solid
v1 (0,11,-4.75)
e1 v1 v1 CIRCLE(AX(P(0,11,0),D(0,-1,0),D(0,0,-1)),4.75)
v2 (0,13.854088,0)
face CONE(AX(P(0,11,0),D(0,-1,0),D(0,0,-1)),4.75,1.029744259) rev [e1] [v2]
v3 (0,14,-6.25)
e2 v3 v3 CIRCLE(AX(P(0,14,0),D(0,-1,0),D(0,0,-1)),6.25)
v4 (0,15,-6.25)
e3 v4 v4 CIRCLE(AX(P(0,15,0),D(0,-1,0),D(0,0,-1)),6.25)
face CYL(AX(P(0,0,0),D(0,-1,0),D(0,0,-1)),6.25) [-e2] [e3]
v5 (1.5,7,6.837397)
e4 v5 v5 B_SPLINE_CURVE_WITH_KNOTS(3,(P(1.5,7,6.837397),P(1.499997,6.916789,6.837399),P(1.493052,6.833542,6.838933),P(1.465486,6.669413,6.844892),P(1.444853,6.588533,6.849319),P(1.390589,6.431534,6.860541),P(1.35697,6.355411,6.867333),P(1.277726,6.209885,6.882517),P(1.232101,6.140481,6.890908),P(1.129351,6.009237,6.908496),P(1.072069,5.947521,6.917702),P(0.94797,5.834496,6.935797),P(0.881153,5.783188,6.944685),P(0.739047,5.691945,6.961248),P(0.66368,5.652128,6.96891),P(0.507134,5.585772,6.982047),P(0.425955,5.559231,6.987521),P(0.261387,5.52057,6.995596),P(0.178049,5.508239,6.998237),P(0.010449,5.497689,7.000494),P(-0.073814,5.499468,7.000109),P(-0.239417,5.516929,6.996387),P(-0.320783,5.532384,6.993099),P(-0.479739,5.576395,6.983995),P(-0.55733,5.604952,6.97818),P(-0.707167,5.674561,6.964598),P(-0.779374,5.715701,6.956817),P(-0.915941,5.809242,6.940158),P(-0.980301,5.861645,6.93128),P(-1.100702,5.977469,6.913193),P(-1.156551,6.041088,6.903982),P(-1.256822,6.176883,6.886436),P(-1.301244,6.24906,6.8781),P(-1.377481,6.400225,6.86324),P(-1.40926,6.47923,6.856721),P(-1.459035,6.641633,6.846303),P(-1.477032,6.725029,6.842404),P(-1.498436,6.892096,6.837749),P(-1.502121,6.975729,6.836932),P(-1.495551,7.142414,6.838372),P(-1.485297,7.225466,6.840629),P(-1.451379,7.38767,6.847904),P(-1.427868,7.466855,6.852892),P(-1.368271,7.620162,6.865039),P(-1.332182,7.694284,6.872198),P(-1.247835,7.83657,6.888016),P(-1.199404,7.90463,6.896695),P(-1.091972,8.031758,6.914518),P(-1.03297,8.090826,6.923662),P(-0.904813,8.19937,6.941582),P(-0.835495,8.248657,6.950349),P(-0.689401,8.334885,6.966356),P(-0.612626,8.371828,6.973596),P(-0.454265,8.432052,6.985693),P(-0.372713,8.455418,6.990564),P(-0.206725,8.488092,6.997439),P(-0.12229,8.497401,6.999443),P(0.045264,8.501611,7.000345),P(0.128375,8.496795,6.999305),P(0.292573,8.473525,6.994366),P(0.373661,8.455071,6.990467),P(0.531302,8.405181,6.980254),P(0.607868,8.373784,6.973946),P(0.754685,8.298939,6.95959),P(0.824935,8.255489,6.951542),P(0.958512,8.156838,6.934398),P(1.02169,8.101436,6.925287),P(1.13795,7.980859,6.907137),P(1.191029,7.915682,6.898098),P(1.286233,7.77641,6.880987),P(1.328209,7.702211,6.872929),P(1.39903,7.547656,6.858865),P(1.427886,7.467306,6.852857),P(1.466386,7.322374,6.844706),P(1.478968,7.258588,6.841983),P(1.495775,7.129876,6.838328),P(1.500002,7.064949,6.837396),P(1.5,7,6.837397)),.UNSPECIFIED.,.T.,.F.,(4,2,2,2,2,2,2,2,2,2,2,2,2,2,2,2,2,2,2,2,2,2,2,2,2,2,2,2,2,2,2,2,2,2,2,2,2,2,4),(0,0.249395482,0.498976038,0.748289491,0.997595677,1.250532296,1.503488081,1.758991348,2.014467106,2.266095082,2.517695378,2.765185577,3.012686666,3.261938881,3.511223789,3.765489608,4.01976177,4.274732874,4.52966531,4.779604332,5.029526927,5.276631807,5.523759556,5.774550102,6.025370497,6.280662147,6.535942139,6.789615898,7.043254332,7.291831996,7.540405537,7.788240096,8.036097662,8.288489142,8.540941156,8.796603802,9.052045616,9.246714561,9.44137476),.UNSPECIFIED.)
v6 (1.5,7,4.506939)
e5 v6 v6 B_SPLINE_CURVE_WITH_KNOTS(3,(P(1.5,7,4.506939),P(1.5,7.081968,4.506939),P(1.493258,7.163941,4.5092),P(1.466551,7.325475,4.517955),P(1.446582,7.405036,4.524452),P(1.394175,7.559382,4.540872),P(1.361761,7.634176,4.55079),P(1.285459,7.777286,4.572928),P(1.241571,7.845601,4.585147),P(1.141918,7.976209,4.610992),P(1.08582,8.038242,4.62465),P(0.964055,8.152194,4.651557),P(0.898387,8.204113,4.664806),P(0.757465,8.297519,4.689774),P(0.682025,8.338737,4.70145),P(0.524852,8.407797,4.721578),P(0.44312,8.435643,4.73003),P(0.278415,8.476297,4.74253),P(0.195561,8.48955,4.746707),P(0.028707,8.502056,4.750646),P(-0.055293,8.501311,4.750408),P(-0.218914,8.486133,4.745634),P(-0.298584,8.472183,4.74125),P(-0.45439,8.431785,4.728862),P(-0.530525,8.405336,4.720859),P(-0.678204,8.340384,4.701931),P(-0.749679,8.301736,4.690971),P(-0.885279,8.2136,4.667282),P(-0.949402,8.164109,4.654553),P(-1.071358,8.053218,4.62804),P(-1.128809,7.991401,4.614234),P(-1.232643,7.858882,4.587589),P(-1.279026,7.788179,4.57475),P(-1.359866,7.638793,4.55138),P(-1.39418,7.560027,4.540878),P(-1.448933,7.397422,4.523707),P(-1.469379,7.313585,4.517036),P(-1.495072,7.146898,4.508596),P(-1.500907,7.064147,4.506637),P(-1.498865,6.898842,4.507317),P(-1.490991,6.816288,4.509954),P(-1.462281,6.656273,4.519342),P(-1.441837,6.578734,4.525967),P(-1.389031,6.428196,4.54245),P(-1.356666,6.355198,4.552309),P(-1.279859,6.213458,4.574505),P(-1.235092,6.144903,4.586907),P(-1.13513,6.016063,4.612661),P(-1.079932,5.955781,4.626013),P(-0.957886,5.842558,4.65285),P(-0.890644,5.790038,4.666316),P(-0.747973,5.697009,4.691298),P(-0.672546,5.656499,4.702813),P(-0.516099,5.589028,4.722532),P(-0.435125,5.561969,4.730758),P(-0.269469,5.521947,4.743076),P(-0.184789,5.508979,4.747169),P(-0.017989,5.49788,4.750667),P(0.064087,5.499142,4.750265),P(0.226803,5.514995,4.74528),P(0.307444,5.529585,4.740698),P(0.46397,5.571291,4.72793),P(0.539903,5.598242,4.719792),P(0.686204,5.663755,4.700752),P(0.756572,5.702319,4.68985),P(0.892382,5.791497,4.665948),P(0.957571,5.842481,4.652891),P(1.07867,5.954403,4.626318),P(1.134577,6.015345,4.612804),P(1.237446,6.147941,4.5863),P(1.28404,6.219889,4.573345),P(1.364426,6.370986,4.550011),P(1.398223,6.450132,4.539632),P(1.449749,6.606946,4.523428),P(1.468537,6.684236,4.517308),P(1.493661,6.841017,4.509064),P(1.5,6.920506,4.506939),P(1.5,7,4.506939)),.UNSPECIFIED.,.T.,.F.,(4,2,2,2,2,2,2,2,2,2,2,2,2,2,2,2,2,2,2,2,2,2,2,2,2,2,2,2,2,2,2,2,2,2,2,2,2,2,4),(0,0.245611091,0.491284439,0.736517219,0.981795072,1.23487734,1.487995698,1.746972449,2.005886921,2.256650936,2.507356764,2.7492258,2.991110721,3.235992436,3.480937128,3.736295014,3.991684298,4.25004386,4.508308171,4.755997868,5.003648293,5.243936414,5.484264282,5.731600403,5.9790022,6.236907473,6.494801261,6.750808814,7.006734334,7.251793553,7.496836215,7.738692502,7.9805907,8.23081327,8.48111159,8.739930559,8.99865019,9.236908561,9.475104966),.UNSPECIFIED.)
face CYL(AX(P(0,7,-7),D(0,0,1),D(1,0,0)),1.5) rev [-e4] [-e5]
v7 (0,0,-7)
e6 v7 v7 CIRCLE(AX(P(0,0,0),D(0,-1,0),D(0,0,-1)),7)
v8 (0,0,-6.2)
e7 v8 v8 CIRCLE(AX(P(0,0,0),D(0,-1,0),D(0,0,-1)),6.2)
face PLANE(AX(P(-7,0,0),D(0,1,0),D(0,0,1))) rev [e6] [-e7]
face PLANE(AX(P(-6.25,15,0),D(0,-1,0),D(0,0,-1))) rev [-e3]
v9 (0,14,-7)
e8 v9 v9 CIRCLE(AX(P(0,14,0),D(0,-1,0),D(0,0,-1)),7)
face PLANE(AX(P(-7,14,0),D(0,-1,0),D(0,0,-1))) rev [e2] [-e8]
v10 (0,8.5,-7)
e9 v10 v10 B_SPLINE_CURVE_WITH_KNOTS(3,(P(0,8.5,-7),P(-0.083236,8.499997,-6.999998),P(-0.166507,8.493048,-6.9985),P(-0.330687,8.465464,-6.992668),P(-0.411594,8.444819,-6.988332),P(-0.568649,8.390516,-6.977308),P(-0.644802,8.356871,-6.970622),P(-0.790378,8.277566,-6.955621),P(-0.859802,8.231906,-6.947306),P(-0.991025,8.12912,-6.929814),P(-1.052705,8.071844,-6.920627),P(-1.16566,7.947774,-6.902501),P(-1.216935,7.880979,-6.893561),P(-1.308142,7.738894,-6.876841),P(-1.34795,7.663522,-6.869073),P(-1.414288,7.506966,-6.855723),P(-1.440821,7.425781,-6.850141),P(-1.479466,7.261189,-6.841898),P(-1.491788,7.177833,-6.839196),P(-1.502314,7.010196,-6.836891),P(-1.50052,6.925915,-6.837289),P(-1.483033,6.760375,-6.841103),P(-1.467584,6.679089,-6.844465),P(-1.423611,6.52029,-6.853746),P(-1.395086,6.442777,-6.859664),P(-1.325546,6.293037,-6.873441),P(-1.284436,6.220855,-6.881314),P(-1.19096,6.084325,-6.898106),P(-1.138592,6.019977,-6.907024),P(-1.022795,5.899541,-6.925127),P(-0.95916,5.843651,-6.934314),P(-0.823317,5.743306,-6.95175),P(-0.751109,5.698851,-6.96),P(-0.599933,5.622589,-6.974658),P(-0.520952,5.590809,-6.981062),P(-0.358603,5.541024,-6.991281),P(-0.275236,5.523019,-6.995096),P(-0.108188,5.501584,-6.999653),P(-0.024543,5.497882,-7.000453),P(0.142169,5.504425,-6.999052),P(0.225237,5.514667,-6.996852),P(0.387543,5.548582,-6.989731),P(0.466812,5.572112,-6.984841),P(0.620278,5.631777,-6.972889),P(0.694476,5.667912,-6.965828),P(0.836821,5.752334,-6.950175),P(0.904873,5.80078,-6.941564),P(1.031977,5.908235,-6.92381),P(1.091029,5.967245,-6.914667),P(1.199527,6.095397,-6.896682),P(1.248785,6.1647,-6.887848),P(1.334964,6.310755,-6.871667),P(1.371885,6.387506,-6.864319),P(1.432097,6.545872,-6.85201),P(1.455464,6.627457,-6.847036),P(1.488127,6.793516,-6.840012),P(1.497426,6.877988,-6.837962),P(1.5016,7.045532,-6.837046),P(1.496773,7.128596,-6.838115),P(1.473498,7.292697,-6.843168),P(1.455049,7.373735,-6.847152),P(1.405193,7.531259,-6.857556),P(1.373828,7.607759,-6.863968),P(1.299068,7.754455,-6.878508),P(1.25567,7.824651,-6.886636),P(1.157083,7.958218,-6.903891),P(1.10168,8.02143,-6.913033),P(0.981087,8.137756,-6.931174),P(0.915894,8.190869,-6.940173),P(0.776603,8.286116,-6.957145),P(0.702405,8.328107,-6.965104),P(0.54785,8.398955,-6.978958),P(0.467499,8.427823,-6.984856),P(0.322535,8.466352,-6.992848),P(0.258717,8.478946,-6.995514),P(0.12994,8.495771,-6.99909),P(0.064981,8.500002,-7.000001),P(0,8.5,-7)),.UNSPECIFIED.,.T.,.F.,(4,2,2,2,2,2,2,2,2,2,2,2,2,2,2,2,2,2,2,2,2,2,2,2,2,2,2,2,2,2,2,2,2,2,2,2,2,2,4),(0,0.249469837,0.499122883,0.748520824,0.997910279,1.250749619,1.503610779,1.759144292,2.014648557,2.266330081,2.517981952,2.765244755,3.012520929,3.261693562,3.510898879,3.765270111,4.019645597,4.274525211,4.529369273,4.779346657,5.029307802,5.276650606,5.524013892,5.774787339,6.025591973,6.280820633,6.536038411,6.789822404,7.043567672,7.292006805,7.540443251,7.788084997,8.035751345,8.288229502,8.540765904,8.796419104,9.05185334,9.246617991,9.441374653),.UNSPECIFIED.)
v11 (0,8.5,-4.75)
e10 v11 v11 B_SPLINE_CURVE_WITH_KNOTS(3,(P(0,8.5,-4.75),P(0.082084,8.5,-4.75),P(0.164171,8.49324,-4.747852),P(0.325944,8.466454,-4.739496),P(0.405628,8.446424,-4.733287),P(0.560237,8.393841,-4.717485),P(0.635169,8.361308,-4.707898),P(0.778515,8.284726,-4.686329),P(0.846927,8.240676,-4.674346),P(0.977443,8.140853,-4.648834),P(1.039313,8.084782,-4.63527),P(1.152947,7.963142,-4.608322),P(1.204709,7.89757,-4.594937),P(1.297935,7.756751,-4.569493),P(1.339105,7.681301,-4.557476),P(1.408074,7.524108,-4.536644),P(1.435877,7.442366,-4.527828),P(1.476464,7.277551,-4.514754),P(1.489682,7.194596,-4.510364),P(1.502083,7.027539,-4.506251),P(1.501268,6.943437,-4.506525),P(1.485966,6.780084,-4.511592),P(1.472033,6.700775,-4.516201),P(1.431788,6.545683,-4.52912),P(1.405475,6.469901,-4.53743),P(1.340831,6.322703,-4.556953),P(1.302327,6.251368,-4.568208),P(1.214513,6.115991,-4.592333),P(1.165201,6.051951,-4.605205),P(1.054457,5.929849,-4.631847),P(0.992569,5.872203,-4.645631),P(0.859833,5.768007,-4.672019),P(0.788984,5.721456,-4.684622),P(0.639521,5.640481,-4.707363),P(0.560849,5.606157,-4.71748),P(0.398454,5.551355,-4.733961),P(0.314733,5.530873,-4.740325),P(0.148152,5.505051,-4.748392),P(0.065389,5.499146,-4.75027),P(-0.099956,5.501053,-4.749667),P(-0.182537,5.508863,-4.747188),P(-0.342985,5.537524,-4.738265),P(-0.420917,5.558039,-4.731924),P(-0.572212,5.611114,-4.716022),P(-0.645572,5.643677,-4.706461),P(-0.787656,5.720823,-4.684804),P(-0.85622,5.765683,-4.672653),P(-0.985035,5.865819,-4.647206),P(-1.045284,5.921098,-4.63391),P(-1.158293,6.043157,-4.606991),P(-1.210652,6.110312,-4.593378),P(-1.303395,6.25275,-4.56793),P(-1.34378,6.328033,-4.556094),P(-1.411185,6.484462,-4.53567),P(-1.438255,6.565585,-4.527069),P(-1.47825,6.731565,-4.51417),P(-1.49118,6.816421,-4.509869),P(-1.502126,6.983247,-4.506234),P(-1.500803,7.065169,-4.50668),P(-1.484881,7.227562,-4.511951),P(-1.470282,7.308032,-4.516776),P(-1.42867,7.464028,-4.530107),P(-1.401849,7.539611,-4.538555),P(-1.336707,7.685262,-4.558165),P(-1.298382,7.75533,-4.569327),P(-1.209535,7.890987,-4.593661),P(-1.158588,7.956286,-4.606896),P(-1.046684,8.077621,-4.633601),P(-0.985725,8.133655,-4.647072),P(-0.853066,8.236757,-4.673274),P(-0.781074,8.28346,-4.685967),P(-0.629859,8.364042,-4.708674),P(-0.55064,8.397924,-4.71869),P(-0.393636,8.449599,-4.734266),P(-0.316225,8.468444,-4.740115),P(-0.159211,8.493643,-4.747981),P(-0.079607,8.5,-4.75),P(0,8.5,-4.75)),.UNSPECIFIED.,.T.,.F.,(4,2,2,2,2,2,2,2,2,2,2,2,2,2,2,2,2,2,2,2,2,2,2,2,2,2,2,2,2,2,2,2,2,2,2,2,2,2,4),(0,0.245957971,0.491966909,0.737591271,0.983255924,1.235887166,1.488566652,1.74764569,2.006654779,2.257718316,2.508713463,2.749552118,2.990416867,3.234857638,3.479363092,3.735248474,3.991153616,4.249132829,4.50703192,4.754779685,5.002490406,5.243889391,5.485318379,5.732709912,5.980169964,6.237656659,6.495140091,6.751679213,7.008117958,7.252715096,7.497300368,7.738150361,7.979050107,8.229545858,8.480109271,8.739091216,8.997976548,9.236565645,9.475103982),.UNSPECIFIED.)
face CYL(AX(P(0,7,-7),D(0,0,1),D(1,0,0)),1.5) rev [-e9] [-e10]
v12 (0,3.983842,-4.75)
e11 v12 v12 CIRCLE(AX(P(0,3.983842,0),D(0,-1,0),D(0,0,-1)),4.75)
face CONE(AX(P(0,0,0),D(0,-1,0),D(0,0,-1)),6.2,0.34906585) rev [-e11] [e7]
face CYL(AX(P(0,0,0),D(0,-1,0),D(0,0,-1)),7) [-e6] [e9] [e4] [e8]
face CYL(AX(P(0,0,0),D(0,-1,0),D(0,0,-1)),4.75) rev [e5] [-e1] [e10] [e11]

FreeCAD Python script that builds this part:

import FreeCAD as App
import Part
import Sketcher

V = App.Vector
Q = App.Units.Quantity

doc = App.newDocument("Part")
params = doc.addObject("Spreadsheet::Sheet", "Params")
for row, (alias, value) in enumerate([
    ("sketch1_height", "1 mm"),
    ("sketch1_height2", "14 mm"),
    ("sketch1_width", "0.8 mm"),
    ("sketch1_width2", "6.25 mm"),
    ("revolution_angle", "360 deg"),
    ("sketch2_diameter", "3 mm"),
], start=1):
    params.set(f"A{row}", alias)
    params.set(f"B{row}", "=" + value)
    params.setAlias(f"B{row}", alias)

body = doc.addObject("PartDesign::Body", "Body")

# Sketch on XY plane
sketch1 = body.newObject("Sketcher::SketchObject", "Sketch")
sketch1.AttachmentSupport = (doc.getObject("XY_Plane"), [""])
sketch1.MapMode = "FlatFace"
sketch1.addGeometry(Part.LineSegment(V(-4.8, 4, 0), V(-4.8, 11, 0)), False)
sketch1.addGeometry(Part.LineSegment(V(-4.8, 11, 0), V(0, 13.9, 0)), False)
sketch1.addGeometry(Part.LineSegment(V(0, 13.9, 0), V(0, 15, 0)), False)
sketch1.addGeometry(Part.LineSegment(V(0, 15, 0), V(-6.2, 15, 0)), False)
sketch1.addGeometry(Part.LineSegment(V(-6.2, 15, 0), V(-6.2, 14, 0)), False)
sketch1.addGeometry(Part.LineSegment(V(-6.2, 14, 0), V(-7, 14, 0)), False)
sketch1.addGeometry(Part.LineSegment(V(-7, 14, 0), V(-7, 0, 0)), False)
sketch1.addGeometry(Part.LineSegment(V(-7, 0, 0), V(-6.2, 0, 0)), False)
sketch1.addGeometry(Part.LineSegment(V(-6.2, 0, 0), V(-4.8, 4, 0)), False)
sketch1.addConstraint(Sketcher.Constraint("Coincident", 0, 2, 1, 1))
sketch1.addConstraint(Sketcher.Constraint("Coincident", 1, 2, 2, 1))
sketch1.addConstraint(Sketcher.Constraint("Coincident", 2, 2, 3, 1))
sketch1.addConstraint(Sketcher.Constraint("Coincident", 3, 2, 4, 1))
sketch1.addConstraint(Sketcher.Constraint("Coincident", 4, 2, 5, 1))
sketch1.addConstraint(Sketcher.Constraint("Coincident", 5, 2, 6, 1))
sketch1.addConstraint(Sketcher.Constraint("Coincident", 6, 2, 7, 1))
sketch1.addConstraint(Sketcher.Constraint("Coincident", 7, 2, 8, 1))
sketch1.addConstraint(Sketcher.Constraint("Coincident", 8, 2, 0, 1))
sketch1.addConstraint(Sketcher.Constraint("Vertical", 0))
sketch1.addConstraint(Sketcher.Constraint("Vertical", 2))
sketch1.addConstraint(Sketcher.Constraint("Horizontal", 3))
sketch1.addConstraint(Sketcher.Constraint("Vertical", 4))
sketch1.addConstraint(Sketcher.Constraint("Horizontal", 5))
sketch1.addConstraint(Sketcher.Constraint("Vertical", 6))
sketch1.addConstraint(Sketcher.Constraint("Horizontal", 7))
sketch1.addConstraint(Sketcher.Constraint("PointOnObject", 1, 2, -2))
sketch1.addConstraint(Sketcher.Constraint("PointOnObject", 6, 2, -1))
sketch1.addConstraint(Sketcher.Constraint("DistanceY", 4, 2, 4, 1, Q("1 mm")))
sketch1.addConstraint(Sketcher.Constraint("DistanceY", 6, 2, 6, 1, Q("14 mm")))
sketch1.addConstraint(Sketcher.Constraint("Angle", 1, Q("31 deg")))
sketch1.addConstraint(Sketcher.Constraint("Angle", 8, Q("70 deg")))
sketch1.addConstraint(Sketcher.Constraint("DistanceX", 7, 1, 7, 2, Q("0.8 mm")))
sketch1.addConstraint(Sketcher.Constraint("DistanceY", -1, 1, 0, 2, Q("11 mm")))
sketch1.addConstraint(Sketcher.Constraint("DistanceX", 5, 2, -1, 1, Q("7 mm")))
sketch1.addConstraint(Sketcher.Constraint("DistanceX", 3, 2, 3, 1, Q("6.25 mm")))
sketch1.addConstraint(Sketcher.Constraint("DistanceX", 3, 2, 0, 2, Q("1.5 mm")))
sketch1.setExpression("Constraints[18]", "Params.sketch1_height")
sketch1.setExpression("Constraints[19]", "Params.sketch1_height2")
sketch1.setExpression("Constraints[22]", "Params.sketch1_width")
sketch1.setExpression("Constraints[25]", "Params.sketch1_width2")
revolution = body.newObject("PartDesign::Revolution", "Revolution")
revolution.Profile = sketch1
revolution.ReferenceAxis = (sketch1, ["V_Axis"])
revolution.setExpression("Angle", "Params.revolution_angle")

# Sketch on XY plane
sketch2 = body.newObject("Sketcher::SketchObject", "Sketch001")
sketch2.AttachmentSupport = (doc.getObject("XY_Plane"), [""])
sketch2.MapMode = "FlatFace"
sketch2.addGeometry(Part.Circle(V(0, 7, 0), V(0, 0, 1), 1.5), False)
sketch2.addConstraint(Sketcher.Constraint("PointOnObject", 0, 3, -2))
sketch2.addConstraint(Sketcher.Constraint("Diameter", 0, Q("3 mm")))
sketch2.addConstraint(Sketcher.Constraint("DistanceY", -1, 1, 0, 3, Q("7 mm")))
sketch2.setExpression("Constraints[1]", "Params.sketch2_diameter")
pocket1 = body.newObject("PartDesign::Pocket", "Pocket")
pocket1.Profile = sketch2
pocket1.Type = "ThroughAll"
pocket1.Midplane = True

doc.recompute()
